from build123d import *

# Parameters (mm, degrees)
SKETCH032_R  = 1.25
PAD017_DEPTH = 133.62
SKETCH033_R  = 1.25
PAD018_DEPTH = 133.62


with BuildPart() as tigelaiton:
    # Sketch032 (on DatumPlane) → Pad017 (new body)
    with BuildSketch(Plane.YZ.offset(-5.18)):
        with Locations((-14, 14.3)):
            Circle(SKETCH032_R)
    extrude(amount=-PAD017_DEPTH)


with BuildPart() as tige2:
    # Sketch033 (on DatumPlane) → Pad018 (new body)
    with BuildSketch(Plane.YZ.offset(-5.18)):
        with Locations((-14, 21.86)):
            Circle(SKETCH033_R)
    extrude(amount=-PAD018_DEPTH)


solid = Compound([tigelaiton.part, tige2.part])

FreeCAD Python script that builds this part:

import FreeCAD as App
import Part
import Sketcher

V = App.Vector

doc = App.newDocument("Part")
body = doc.addObject("PartDesign::Body", "Body")

sketch1 = doc.addObject("Sketcher::SketchObject", "Sketch")
body.addObject(sketch1)
sketch1.AttachmentSupport = (doc.YZ_Plane, [""])
sketch1.MapMode = "FlatFace"
sketch1.AttachmentOffset = App.Placement(V(0, 0, -5.18), App.Rotation())
sketch1.addGeometry(Part.Circle(V(-14, 14.3, 0), V(0, 0, 1), 1.2), False)
sketch1.addConstraint([
    Sketcher.Constraint("Diameter", 0, 2.5),
    Sketcher.Constraint("DistanceX", 0, 3, -1, 1, 14.0),
    Sketcher.Constraint("DistanceY", -1, 1, 0, 3, 14.3),
])
pad1 = doc.addObject("PartDesign::Pad", "Pad")
body.addObject(pad1)
pad1.Profile = sketch1
pad1.Length = 133.62
pad1.Reversed = True
body2 = doc.addObject("PartDesign::Body", "Body001")

sketch2 = doc.addObject("Sketcher::SketchObject", "Sketch001")
body2.addObject(sketch2)
sketch2.AttachmentSupport = (doc.getObject("YZ_Plane001"), [""])
sketch2.MapMode = "FlatFace"
sketch2.AttachmentOffset = App.Placement(V(0, 0, -5.18), App.Rotation())
sketch2.addGeometry(Part.Circle(V(-14, 21.9, 0), V(0, 0, 1), 1.2), False)
sketch2.addConstraint([
    Sketcher.Constraint("Diameter", 0, 2.5),
    Sketcher.Constraint("DistanceX", 0, 3, -1, 1, 14.0),
    Sketcher.Constraint("DistanceY", -1, 1, 0, 3, 21.86),
])
pad2 = doc.addObject("PartDesign::Pad", "Pad001")
body2.addObject(pad2)
pad2.Profile = sketch2
pad2.Length = 133.62
pad2.Reversed = True

doc.recompute()
